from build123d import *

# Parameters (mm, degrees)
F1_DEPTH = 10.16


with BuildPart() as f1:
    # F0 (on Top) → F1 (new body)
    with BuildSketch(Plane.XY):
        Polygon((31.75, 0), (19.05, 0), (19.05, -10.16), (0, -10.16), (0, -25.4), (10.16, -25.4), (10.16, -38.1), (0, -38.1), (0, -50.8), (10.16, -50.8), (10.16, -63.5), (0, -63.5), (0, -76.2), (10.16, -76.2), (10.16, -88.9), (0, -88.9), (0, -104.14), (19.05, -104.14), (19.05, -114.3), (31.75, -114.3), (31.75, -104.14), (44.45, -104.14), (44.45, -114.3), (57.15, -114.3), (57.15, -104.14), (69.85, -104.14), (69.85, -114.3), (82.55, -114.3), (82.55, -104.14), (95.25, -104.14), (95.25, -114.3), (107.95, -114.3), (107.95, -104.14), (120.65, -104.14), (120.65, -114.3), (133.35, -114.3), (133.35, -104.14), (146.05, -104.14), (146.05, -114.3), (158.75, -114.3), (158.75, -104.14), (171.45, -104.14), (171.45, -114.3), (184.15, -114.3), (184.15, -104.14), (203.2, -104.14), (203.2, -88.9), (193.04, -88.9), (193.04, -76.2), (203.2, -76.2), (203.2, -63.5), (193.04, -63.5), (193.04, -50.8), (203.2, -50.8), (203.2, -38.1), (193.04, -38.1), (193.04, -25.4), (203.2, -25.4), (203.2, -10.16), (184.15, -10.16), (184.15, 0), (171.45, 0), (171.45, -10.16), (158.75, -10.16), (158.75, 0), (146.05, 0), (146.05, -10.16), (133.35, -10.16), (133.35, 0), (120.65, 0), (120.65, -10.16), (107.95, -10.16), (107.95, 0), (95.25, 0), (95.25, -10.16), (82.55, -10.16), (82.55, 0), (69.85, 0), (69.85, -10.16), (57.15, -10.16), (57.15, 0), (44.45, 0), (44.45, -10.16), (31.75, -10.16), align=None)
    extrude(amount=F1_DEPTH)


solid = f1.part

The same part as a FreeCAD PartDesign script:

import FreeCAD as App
import Part
import Sketcher
Q = App.Units.Quantity

doc = App.newDocument("Part")
params = doc.addObject("Spreadsheet::Sheet", "Params")
for row, (alias, value) in enumerate([
    ("sketch1_width", "0.5 in"),
    ("sketch1_width2", "0.4 in"),
    ("sketch1_height", "0.6 in"),
    ("pad1_length", "0.4 in"),
], start=1):
    params.set(f"A{row}", alias)
    params.set(f"B{row}", "=" + value)
    params.setAlias(f"B{row}", alias)

body = doc.addObject("PartDesign::Body", "Body")

sketch1 = body.newObject("Sketcher::SketchObject", "Sketch")
sketch1.AttachmentSupport = (doc.getObject("XY_Plane"), [""])
sketch1.MapMode = "FlatFace"
sketch1.addGeometry(Part.LineSegment(App.Vector(32, 0, 0), App.Vector(19, 0, 0)), False)
sketch1.addGeometry(Part.LineSegment(App.Vector(19, 0, 0), App.Vector(19, -10, 0)), False)
sketch1.addGeometry(Part.LineSegment(App.Vector(19, -10, 0), App.Vector(0, -10, 0)), False)
sketch1.addGeometry(Part.LineSegment(App.Vector(0, -10, 0), App.Vector(0, -25, 0)), False)
sketch1.addGeometry(Part.LineSegment(App.Vector(0, -25, 0), App.Vector(10, -25, 0)), False)
sketch1.addGeometry(Part.LineSegment(App.Vector(10, -25, 0), App.Vector(10, -38, 0)), False)
sketch1.addGeometry(Part.LineSegment(App.Vector(10, -38, 0), App.Vector(0, -38, 0)), False)
sketch1.addGeometry(Part.LineSegment(App.Vector(0, -38, 0), App.Vector(0, -51, 0)), False)
sketch1.addGeometry(Part.LineSegment(App.Vector(0, -51, 0), App.Vector(10, -51, 0)), False)
sketch1.addGeometry(Part.LineSegment(App.Vector(10, -51, 0), App.Vector(10, -64, 0)), False)
sketch1.addGeometry(Part.LineSegment(App.Vector(10, -64, 0), App.Vector(0, -64, 0)), False)
sketch1.addGeometry(Part.LineSegment(App.Vector(0, -64, 0), App.Vector(0, -76, 0)), False)
sketch1.addGeometry(Part.LineSegment(App.Vector(0, -76, 0), App.Vector(10, -76, 0)), False)
sketch1.addGeometry(Part.LineSegment(App.Vector(10, -76, 0), App.Vector(10, -89, 0)), False)
sketch1.addGeometry(Part.LineSegment(App.Vector(10, -89, 0), App.Vector(0, -89, 0)), False)
sketch1.addGeometry(Part.LineSegment(App.Vector(0, -89, 0), App.Vector(0, -104, 0)), False)
sketch1.addGeometry(Part.LineSegment(App.Vector(0, -104, 0), App.Vector(19, -104, 0)), False)
sketch1.addGeometry(Part.LineSegment(App.Vector(19, -104, 0), App.Vector(19, -114, 0)), False)
sketch1.addGeometry(Part.LineSegment(App.Vector(19, -114, 0), App.Vector(32, -114, 0)), False)
sketch1.addGeometry(Part.LineSegment(App.Vector(32, -114, 0), App.Vector(32, -104, 0)), False)
sketch1.addGeometry(Part.LineSegment(App.Vector(32, -104, 0), App.Vector(44, -104, 0)), False)
sketch1.addGeometry(Part.LineSegment(App.Vector(44, -104, 0), App.Vector(44, -114, 0)), False)
sketch1.addGeometry(Part.LineSegment(App.Vector(44, -114, 0), App.Vector(57, -114, 0)), False)
sketch1.addGeometry(Part.LineSegment(App.Vector(57, -114, 0), App.Vector(57, -104, 0)), False)
sketch1.addGeometry(Part.LineSegment(App.Vector(57, -104, 0), App.Vector(70, -104, 0)), False)
sketch1.addGeometry(Part.LineSegment(App.Vector(70, -104, 0), App.Vector(70, -114, 0)), False)
sketch1.addGeometry(Part.LineSegment(App.Vector(70, -114, 0), App.Vector(83, -114, 0)), False)
sketch1.addGeometry(Part.LineSegment(App.Vector(83, -114, 0), App.Vector(83, -104, 0)), False)
sketch1.addGeometry(Part.LineSegment(App.Vector(83, -104, 0), App.Vector(95, -104, 0)), False)
sketch1.addGeometry(Part.LineSegment(App.Vector(95, -104, 0), App.Vector(95, -114, 0)), False)
sketch1.addGeometry(Part.LineSegment(App.Vector(95, -114, 0), App.Vector(108, -114, 0)), False)
sketch1.addGeometry(Part.LineSegment(App.Vector(108, -114, 0), App.Vector(108, -104, 0)), False)
sketch1.addGeometry(Part.LineSegment(App.Vector(108, -104, 0), App.Vector(121, -104, 0)), False)
sketch1.addGeometry(Part.LineSegment(App.Vector(121, -104, 0), App.Vector(121, -114, 0)), False)
sketch1.addGeometry(Part.LineSegment(App.Vector(121, -114, 0), App.Vector(133, -114, 0)), False)
sketch1.addGeometry(Part.LineSegment(App.Vector(133, -114, 0), App.Vector(133, -104, 0)), False)
sketch1.addGeometry(Part.LineSegment(App.Vector(133, -104, 0), App.Vector(146, -104, 0)), False)
sketch1.addGeometry(Part.LineSegment(App.Vector(146, -104, 0), App.Vector(146, -114, 0)), False)
sketch1.addGeometry(Part.LineSegment(App.Vector(146, -114, 0), App.Vector(159, -114, 0)), False)
sketch1.addGeometry(Part.LineSegment(App.Vector(159, -114, 0), App.Vector(159, -104, 0)), False)
sketch1.addGeometry(Part.LineSegment(App.Vector(159, -104, 0), App.Vector(171, -104, 0)), False)
sketch1.addGeometry(Part.LineSegment(App.Vector(171, -104, 0), App.Vector(171, -114, 0)), False)
sketch1.addGeometry(Part.LineSegment(App.Vector(171, -114, 0), App.Vector(184, -114, 0)), False)
sketch1.addGeometry(Part.LineSegment(App.Vector(184, -114, 0), App.Vector(184, -104, 0)), False)
sketch1.addGeometry(Part.LineSegment(App.Vector(184, -104, 0), App.Vector(203, -104, 0)), False)
sketch1.addGeometry(Part.LineSegment(App.Vector(203, -104, 0), App.Vector(203, -89, 0)), False)
sketch1.addGeometry(Part.LineSegment(App.Vector(203, -89, 0), App.Vector(193, -89, 0)), False)
sketch1.addGeometry(Part.LineSegment(App.Vector(193, -89, 0), App.Vector(193, -76, 0)), False)
sketch1.addGeometry(Part.LineSegment(App.Vector(193, -76, 0), App.Vector(203, -76, 0)), False)
sketch1.addGeometry(Part.LineSegment(App.Vector(203, -76, 0), App.Vector(203, -64, 0)), False)
sketch1.addGeometry(Part.LineSegment(App.Vector(203, -64, 0), App.Vector(193, -64, 0)), False)
sketch1.addGeometry(Part.LineSegment(App.Vector(193, -64, 0), App.Vector(193, -51, 0)), False)
sketch1.addGeometry(Part.LineSegment(App.Vector(193, -51, 0), App.Vector(203, -51, 0)), False)
sketch1.addGeometry(Part.LineSegment(App.Vector(203, -51, 0), App.Vector(203, -38, 0)), False)
sketch1.addGeometry(Part.LineSegment(App.Vector(203, -38, 0), App.Vector(193, -38, 0)), False)
sketch1.addGeometry(Part.LineSegment(App.Vector(193, -38, 0), App.Vector(193, -25, 0)), False)
sketch1.addGeometry(Part.LineSegment(App.Vector(193, -25, 0), App.Vector(203, -25, 0)), False)
sketch1.addGeometry(Part.LineSegment(App.Vector(203, -25, 0), App.Vector(203, -10, 0)), False)
sketch1.addGeometry(Part.LineSegment(App.Vector(203, -10, 0), App.Vector(184, -10, 0)), False)
sketch1.addGeometry(Part.LineSegment(App.Vector(184, -10, 0), App.Vector(184, 0, 0)), False)
sketch1.addGeometry(Part.LineSegment(App.Vector(184, 0, 0), App.Vector(171, 0, 0)), False)
sketch1.addGeometry(Part.LineSegment(App.Vector(171, 0, 0), App.Vector(171, -10, 0)), False)
sketch1.addGeometry(Part.LineSegment(App.Vector(171, -10, 0), App.Vector(159, -10, 0)), False)
sketch1.addGeometry(Part.LineSegment(App.Vector(159, -10, 0), App.Vector(159, 0, 0)), False)
sketch1.addGeometry(Part.LineSegment(App.Vector(159, 0, 0), App.Vector(146, 0, 0)), False)
sketch1.addGeometry(Part.LineSegment(App.Vector(146, 0, 0), App.Vector(146, -10, 0)), False)
sketch1.addGeometry(Part.LineSegment(App.Vector(146, -10, 0), App.Vector(133, -10, 0)), False)
sketch1.addGeometry(Part.LineSegment(App.Vector(133, -10, 0), App.Vector(133, 0, 0)), False)
sketch1.addGeometry(Part.LineSegment(App.Vector(133, 0, 0), App.Vector(121, 0, 0)), False)
sketch1.addGeometry(Part.LineSegment(App.Vector(121, 0, 0), App.Vector(121, -10, 0)), False)
sketch1.addGeometry(Part.LineSegment(App.Vector(121, -10, 0), App.Vector(108, -10, 0)), False)
sketch1.addGeometry(Part.LineSegment(App.Vector(108, -10, 0), App.Vector(108, 0, 0)), False)
sketch1.addGeometry(Part.LineSegment(App.Vector(108, 0, 0), App.Vector(95, 0, 0)), False)
sketch1.addGeometry(Part.LineSegment(App.Vector(95, 0, 0), App.Vector(95, -10, 0)), False)
sketch1.addGeometry(Part.LineSegment(App.Vector(95, -10, 0), App.Vector(83, -10, 0)), False)
sketch1.addGeometry(Part.LineSegment(App.Vector(83, -10, 0), App.Vector(83, 0, 0)), False)
sketch1.addGeometry(Part.LineSegment(App.Vector(83, 0, 0), App.Vector(70, 0, 0)), False)
sketch1.addGeometry(Part.LineSegment(App.Vector(70, 0, 0), App.Vector(70, -10, 0)), False)
sketch1.addGeometry(Part.LineSegment(App.Vector(70, -10, 0), App.Vector(57, -10, 0)), False)
sketch1.addGeometry(Part.LineSegment(App.Vector(57, -10, 0), App.Vector(57, 0, 0)), False)
sketch1.addGeometry(Part.LineSegment(App.Vector(57, 0, 0), App.Vector(44, 0, 0)), False)
sketch1.addGeometry(Part.LineSegment(App.Vector(44, 0, 0), App.Vector(44, -10, 0)), False)
sketch1.addGeometry(Part.LineSegment(App.Vector(44, -10, 0), App.Vector(32, -10, 0)), False)
sketch1.addGeometry(Part.LineSegment(App.Vector(32, -10, 0), App.Vector(32, 0, 0)), False)
sketch1.addConstraint(Sketcher.Constraint("Coincident", 0, 2, 1, 1))
sketch1.addConstraint(Sketcher.Constraint("Coincident", 1, 2, 2, 1))
sketch1.addConstraint(Sketcher.Constraint("Coincident", 2, 2, 3, 1))
sketch1.addConstraint(Sketcher.Constraint("Coincident", 3, 2, 4, 1))
sketch1.addConstraint(Sketcher.Constraint("Coincident", 4, 2, 5, 1))
sketch1.addConstraint(Sketcher.Constraint("Coincident", 5, 2, 6, 1))
sketch1.addConstraint(Sketcher.Constraint("Coincident", 6, 2, 7, 1))
sketch1.addConstraint(Sketcher.Constraint("Coincident", 7, 2, 8, 1))
sketch1.addConstraint(Sketcher.Constraint("Coincident", 8, 2, 9, 1))
sketch1.addConstraint(Sketcher.Constraint("Coincident", 9, 2, 10, 1))
sketch1.addConstraint(Sketcher.Constraint("Coincident", 10, 2, 11, 1))
sketch1.addConstraint(Sketcher.Constraint("Coincident", 11, 2, 12, 1))
sketch1.addConstraint(Sketcher.Constraint("Coincident", 12, 2, 13, 1))
sketch1.addConstraint(Sketcher.Constraint("Coincident", 13, 2, 14, 1))
sketch1.addConstraint(Sketcher.Constraint("Coincident", 14, 2, 15, 1))
sketch1.addConstraint(Sketcher.Constraint("Coincident", 15, 2, 16, 1))
sketch1.addConstraint(Sketcher.Constraint("Coincident", 16, 2, 17, 1))
sketch1.addConstraint(Sketcher.Constraint("Coincident", 17, 2, 18, 1))
sketch1.addConstraint(Sketcher.Constraint("Coincident", 18, 2, 19, 1))
sketch1.addConstraint(Sketcher.Constraint("Coincident", 19, 2, 20, 1))
sketch1.addConstraint(Sketcher.Constraint("Coincident", 20, 2, 21, 1))
sketch1.addConstraint(Sketcher.Constraint("Coincident", 21, 2, 22, 1))
sketch1.addConstraint(Sketcher.Constraint("Coincident", 22, 2, 23, 1))
sketch1.addConstraint(Sketcher.Constraint("Coincident", 23, 2, 24, 1))
sketch1.addConstraint(Sketcher.Constraint("Coincident", 24, 2, 25, 1))
sketch1.addConstraint(Sketcher.Constraint("Coincident", 25, 2, 26, 1))
sketch1.addConstraint(Sketcher.Constraint("Coincident", 26, 2, 27, 1))
sketch1.addConstraint(Sketcher.Constraint("Coincident", 27, 2, 28, 1))
sketch1.addConstraint(Sketcher.Constraint("Coincident", 28, 2, 29, 1))
sketch1.addConstraint(Sketcher.Constraint("Coincident", 29, 2, 30, 1))
sketch1.addConstraint(Sketcher.Constraint("Coincident", 30, 2, 31, 1))
sketch1.addConstraint(Sketcher.Constraint("Coincident", 31, 2, 32, 1))
sketch1.addConstraint(Sketcher.Constraint("Coincident", 32, 2, 33, 1))
sketch1.addConstraint(Sketcher.Constraint("Coincident", 33, 2, 34, 1))
sketch1.addConstraint(Sketcher.Constraint("Coincident", 34, 2, 35, 1))
sketch1.addConstraint(Sketcher.Constraint("Coincident", 35, 2, 36, 1))
sketch1.addConstraint(Sketcher.Constraint("Coincident", 36, 2, 37, 1))
sketch1.addConstraint(Sketcher.Constraint("Coincident", 37, 2, 38, 1))
sketch1.addConstraint(Sketcher.Constraint("Coincident", 38, 2, 39, 1))
sketch1.addConstraint(Sketcher.Constraint("Coincident", 39, 2, 40, 1))
sketch1.addConstraint(Sketcher.Constraint("Coincident", 40, 2, 41, 1))
sketch1.addConstraint(Sketcher.Constraint("Coincident", 41, 2, 42, 1))
sketch1.addConstraint(Sketcher.Constraint("Coincident", 42, 2, 43, 1))
sketch1.addConstraint(Sketcher.Constraint("Coincident", 43, 2, 44, 1))
sketch1.addConstraint(Sketcher.Constraint("Coincident", 44, 2, 45, 1))
sketch1.addConstraint(Sketcher.Constraint("Coincident", 45, 2, 46, 1))
sketch1.addConstraint(Sketcher.Constraint("Coincident", 46, 2, 47, 1))
sketch1.addConstraint(Sketcher.Constraint("Coincident", 47, 2, 48, 1))
sketch1.addConstraint(Sketcher.Constraint("Coincident", 48, 2, 49, 1))
sketch1.addConstraint(Sketcher.Constraint("Coincident", 49, 2, 50, 1))
sketch1.addConstraint(Sketcher.Constraint("Coincident", 50, 2, 51, 1))
sketch1.addConstraint(Sketcher.Constraint("Coincident", 51, 2, 52, 1))
sketch1.addConstraint(Sketcher.Constraint("Coincident", 52, 2, 53, 1))
sketch1.addConstraint(Sketcher.Constraint("Coincident", 53, 2, 54, 1))
sketch1.addConstraint(Sketcher.Constraint("Coincident", 54, 2, 55, 1))
sketch1.addConstraint(Sketcher.Constraint("Coincident", 55, 2, 56, 1))
sketch1.addConstraint(Sketcher.Constraint("Coincident", 56, 2, 57, 1))
sketch1.addConstraint(Sketcher.Constraint("Coincident", 57, 2, 58, 1))
sketch1.addConstraint(Sketcher.Constraint("Coincident", 58, 2, 59, 1))
sketch1.addConstraint(Sketcher.Constraint("Coincident", 59, 2, 60, 1))
sketch1.addConstraint(Sketcher.Constraint("Coincident", 60, 2, 61, 1))
sketch1.addConstraint(Sketcher.Constraint("Coincident", 61, 2, 62, 1))
sketch1.addConstraint(Sketcher.Constraint("Coincident", 62, 2, 63, 1))
sketch1.addConstraint(Sketcher.Constraint("Coincident", 63, 2, 64, 1))
sketch1.addConstraint(Sketcher.Constraint("Coincident", 64, 2, 65, 1))
sketch1.addConstraint(Sketcher.Constraint("Coincident", 65, 2, 66, 1))
sketch1.addConstraint(Sketcher.Constraint("Coincident", 66, 2, 67, 1))
sketch1.addConstraint(Sketcher.Constraint("Coincident", 67, 2, 68, 1))
sketch1.addConstraint(Sketcher.Constraint("Coincident", 68, 2, 69, 1))
sketch1.addConstraint(Sketcher.Constraint("Coincident", 69, 2, 70, 1))
sketch1.addConstraint(Sketcher.Constraint("Coincident", 70, 2, 71, 1))
sketch1.addConstraint(Sketcher.Constraint("Coincident", 71, 2, 72, 1))
sketch1.addConstraint(Sketcher.Constraint("Coincident", 72, 2, 73, 1))
sketch1.addConstraint(Sketcher.Constraint("Coincident", 73, 2, 74, 1))
sketch1.addConstraint(Sketcher.Constraint("Coincident", 74, 2, 75, 1))
sketch1.addConstraint(Sketcher.Constraint("Coincident", 75, 2, 76, 1))
sketch1.addConstraint(Sketcher.Constraint("Coincident", 76, 2, 77, 1))
sketch1.addConstraint(Sketcher.Constraint("Coincident", 77, 2, 78, 1))
sketch1.addConstraint(Sketcher.Constraint("Coincident", 78, 2, 79, 1))
sketch1.addConstraint(Sketcher.Constraint("Coincident", 79, 2, 80, 1))
sketch1.addConstraint(Sketcher.Constraint("Coincident", 80, 2, 81, 1))
sketch1.addConstraint(Sketcher.Constraint("Coincident", 81, 2, 82, 1))
sketch1.addConstraint(Sketcher.Constraint("Coincident", 82, 2, 83, 1))
sketch1.addConstraint(Sketcher.Constraint("Coincident", 83, 2, 0, 1))
sketch1.addConstraint(Sketcher.Constraint("Horizontal", 0))
sketch1.addConstraint(Sketcher.Constraint("Vertical", 1))
sketch1.addConstraint(Sketcher.Constraint("Horizontal", 2))
sketch1.addConstraint(Sketcher.Constraint("Vertical", 3))
sketch1.addConstraint(Sketcher.Constraint("Horizontal", 4))
sketch1.addConstraint(Sketcher.Constraint("Vertical", 5))
sketch1.addConstraint(Sketcher.Constraint("Horizontal", 6))
sketch1.addConstraint(Sketcher.Constraint("Vertical", 7))
sketch1.addConstraint(Sketcher.Constraint("Horizontal", 8))
sketch1.addConstraint(Sketcher.Constraint("Vertical", 9))
sketch1.addConstraint(Sketcher.Constraint("Horizontal", 10))
sketch1.addConstraint(Sketcher.Constraint("Vertical", 11))
sketch1.addConstraint(Sketcher.Constraint("Horizontal", 12))
sketch1.addConstraint(Sketcher.Constraint("Vertical", 13))
sketch1.addConstraint(Sketcher.Constraint("Horizontal", 14))
sketch1.addConstraint(Sketcher.Constraint("Vertical", 15))
sketch1.addConstraint(Sketcher.Constraint("Horizontal", 16))
sketch1.addConstraint(Sketcher.Constraint("Vertical", 17))
sketch1.addConstraint(Sketcher.Constraint("Horizontal", 18))
sketch1.addConstraint(Sketcher.Constraint("Vertical", 19))
sketch1.addConstraint(Sketcher.Constraint("Horizontal", 20))
sketch1.addConstraint(Sketcher.Constraint("Vertical", 21))
sketch1.addConstraint(Sketcher.Constraint("Horizontal", 22))
sketch1.addConstraint(Sketcher.Constraint("Vertical", 23))
sketch1.addConstraint(Sketcher.Constraint("Horizontal", 24))
sketch1.addConstraint(Sketcher.Constraint("Vertical", 25))
sketch1.addConstraint(Sketcher.Constraint("Horizontal", 26))
sketch1.addConstraint(Sketcher.Constraint("Vertical", 27))
sketch1.addConstraint(Sketcher.Constraint("Horizontal", 28))
sketch1.addConstraint(Sketcher.Constraint("Vertical", 29))
sketch1.addConstraint(Sketcher.Constraint("Horizontal", 30))
sketch1.addConstraint(Sketcher.Constraint("Vertical", 31))
sketch1.addConstraint(Sketcher.Constraint("Horizontal", 32))
sketch1.addConstraint(Sketcher.Constraint("Vertical", 33))
sketch1.addConstraint(Sketcher.Constraint("Horizontal", 34))
sketch1.addConstraint(Sketcher.Constraint("Vertical", 35))
sketch1.addConstraint(Sketcher.Constraint("Horizontal", 36))
sketch1.addConstraint(Sketcher.Constraint("Vertical", 37))
sketch1.addConstraint(Sketcher.Constraint("Horizontal", 38))
sketch1.addConstraint(Sketcher.Constraint("Vertical", 39))
sketch1.addConstraint(Sketcher.Constraint("Horizontal", 40))
sketch1.addConstraint(Sketcher.Constraint("Vertical", 41))
sketch1.addConstraint(Sketcher.Constraint("Horizontal", 42))
sketch1.addConstraint(Sketcher.Constraint("Vertical", 43))
sketch1.addConstraint(Sketcher.Constraint("Horizontal", 44))
sketch1.addConstraint(Sketcher.Constraint("Vertical", 45))
sketch1.addConstraint(Sketcher.Constraint("Horizontal", 46))
sketch1.addConstraint(Sketcher.Constraint("Vertical", 47))
sketch1.addConstraint(Sketcher.Constraint("Horizontal", 48))
sketch1.addConstraint(Sketcher.Constraint("Vertical", 49))
sketch1.addConstraint(Sketcher.Constraint("Horizontal", 50))
sketch1.addConstraint(Sketcher.Constraint("Vertical", 51))
sketch1.addConstraint(Sketcher.Constraint("Horizontal", 52))
sketch1.addConstraint(Sketcher.Constraint("Vertical", 53))
sketch1.addConstraint(Sketcher.Constraint("Horizontal", 54))
sketch1.addConstraint(Sketcher.Constraint("Vertical", 55))
sketch1.addConstraint(Sketcher.Constraint("Horizontal", 56))
sketch1.addConstraint(Sketcher.Constraint("Vertical", 57))
sketch1.addConstraint(Sketcher.Constraint("Horizontal", 58))
sketch1.addConstraint(Sketcher.Constraint("Vertical", 59))
sketch1.addConstraint(Sketcher.Constraint("Horizontal", 60))
sketch1.addConstraint(Sketcher.Constraint("Vertical", 61))
sketch1.addConstraint(Sketcher.Constraint("Horizontal", 62))
sketch1.addConstraint(Sketcher.Constraint("Vertical", 63))
sketch1.addConstraint(Sketcher.Constraint("Horizontal", 64))
sketch1.addConstraint(Sketcher.Constraint("Vertical", 65))
sketch1.addConstraint(Sketcher.Constraint("Horizontal", 66))
sketch1.addConstraint(Sketcher.Constraint("Vertical", 67))
sketch1.addConstraint(Sketcher.Constraint("Horizontal", 68))
sketch1.addConstraint(Sketcher.Constraint("Vertical", 69))
sketch1.addConstraint(Sketcher.Constraint("Horizontal", 70))
sketch1.addConstraint(Sketcher.Constraint("Vertical", 71))
sketch1.addConstraint(Sketcher.Constraint("Horizontal", 72))
sketch1.addConstraint(Sketcher.Constraint("Vertical", 73))
sketch1.addConstraint(Sketcher.Constraint("Horizontal", 74))
sketch1.addConstraint(Sketcher.Constraint("Vertical", 75))
sketch1.addConstraint(Sketcher.Constraint("Horizontal", 76))
sketch1.addConstraint(Sketcher.Constraint("Vertical", 77))
sketch1.addConstraint(Sketcher.Constraint("Horizontal", 78))
sketch1.addConstraint(Sketcher.Constraint("Vertical", 79))
sketch1.addConstraint(Sketcher.Constraint("Horizontal", 80))
sketch1.addConstraint(Sketcher.Constraint("Vertical", 81))
sketch1.addConstraint(Sketcher.Constraint("Horizontal", 82))
sketch1.addConstraint(Sketcher.Constraint("Vertical", 83))
sketch1.addConstraint(Sketcher.Constraint("PointOnObject", 0, 2, -1))
sketch1.addConstraint(Sketcher.Constraint("PointOnObject", 2, 2, -2))
sketch1.addConstraint(Sketcher.Constraint("PointOnObject", 6, 2, -2))
sketch1.addConstraint(Sketcher.Constraint("PointOnObject", 10, 2, -2))
sketch1.addConstraint(Sketcher.Constraint("PointOnObject", 14, 2, -2))
sketch1.addConstraint(Sketcher.Constraint("PointOnObject", 59, 2, -1))
sketch1.addConstraint(Sketcher.Constraint("PointOnObject", 63, 2, -1))
sketch1.addConstraint(Sketcher.Constraint("PointOnObject", 67, 2, -1))
sketch1.addConstraint(Sketcher.Constraint("PointOnObject", 71, 2, -1))
sketch1.addConstraint(Sketcher.Constraint("PointOnObject", 75, 2, -1))
sketch1.addConstraint(Sketcher.Constraint("PointOnObject", 79, 2, -1))
sketch1.addConstraint(Sketcher.Constraint("Horizontal", 16, 2, 19, 2))
sketch1.addConstraint(Sketcher.Constraint("Horizontal", 18, 2, 21, 2))
sketch1.addConstraint(Sketcher.Constraint("Horizontal", 20, 2, 23, 2))
sketch1.addConstraint(Sketcher.Constraint("Horizontal", 22, 2, 25, 2))
sketch1.addConstraint(Sketcher.Constraint("Horizontal", 24, 2, 27, 2))
sketch1.addConstraint(Sketcher.Constraint("Horizontal", 26, 2, 29, 2))
sketch1.addConstraint(Sketcher.Constraint("Horizontal", 28, 2, 31, 2))
sketch1.addConstraint(Sketcher.Constraint("Horizontal", 30, 2, 33, 2))
sketch1.addConstraint(Sketcher.Constraint("Horizontal", 32, 2, 35, 2))
sketch1.addConstraint(Sketcher.Constraint("Horizontal", 34, 2, 37, 2))
sketch1.addConstraint(Sketcher.Constraint("Horizontal", 36, 2, 39, 2))
sketch1.addConstraint(Sketcher.Constraint("Horizontal", 38, 2, 41, 2))
sketch1.addConstraint(Sketcher.Constraint("Horizontal", 40, 2, 43, 2))
sketch1.addConstraint(Sketcher.Constraint("Horizontal", 14, 2, 45, 2))
sketch1.addConstraint(Sketcher.Constraint("Horizontal", 12, 2, 47, 2))
sketch1.addConstraint(Sketcher.Constraint("Horizontal", 10, 2, 49, 2))
sketch1.addConstraint(Sketcher.Constraint("Horizontal", 8, 2, 51, 2))
sketch1.addConstraint(Sketcher.Constraint("Horizontal", 6, 2, 53, 2))
sketch1.addConstraint(Sketcher.Constraint("Horizontal", 4, 2, 55, 2))
sketch1.addConstraint(Sketcher.Constraint("Horizontal", 2, 2, 57, 2))
sketch1.addConstraint(Sketcher.Constraint("Horizontal", 58, 2, 61, 2))
sketch1.addConstraint(Sketcher.Constraint("Horizontal", 62, 2, 65, 2))
sketch1.addConstraint(Sketcher.Constraint("Horizontal", 66, 2, 69, 2))
sketch1.addConstraint(Sketcher.Constraint("Horizontal", 70, 2, 73, 2))
sketch1.addConstraint(Sketcher.Constraint("Horizontal", 74, 2, 77, 2))
sketch1.addConstraint(Sketcher.Constraint("Horizontal", 78, 2, 81, 2))
sketch1.addConstraint(Sketcher.Constraint("Vertical", 5, 2, 8, 2))
sketch1.addConstraint(Sketcher.Constraint("Vertical", 9, 2, 12, 2))
sketch1.addConstraint(Sketcher.Constraint("Vertical", 1, 2, 16, 2))
sketch1.addConstraint(Sketcher.Constraint("Vertical", 45, 2, 48, 2))
sketch1.addConstraint(Sketcher.Constraint("Vertical", 47, 2, 50, 2))
sketch1.addConstraint(Sketcher.Constraint("Vertical", 49, 2, 52, 2))
sketch1.addConstraint(Sketcher.Constraint("Vertical", 51, 2, 54, 2))
sketch1.addConstraint(Sketcher.Constraint("Vertical", 53, 2, 56, 2))
sketch1.addConstraint(Sketcher.Constraint("Vertical", 43, 2, 58, 2))
sketch1.addConstraint(Sketcher.Constraint("Vertical", 41, 2, 60, 2))
sketch1.addConstraint(Sketcher.Constraint("Vertical", 39, 2, 62, 2))
sketch1.addConstraint(Sketcher.Constraint("Vertical", 37, 2, 64, 2))
sketch1.addConstraint(Sketcher.Constraint("Vertical", 35, 2, 66, 2))
sketch1.addConstraint(Sketcher.Constraint("Vertical", 33, 2, 68, 2))
sketch1.addConstraint(Sketcher.Constraint("Vertical", 31, 2, 70, 2))
sketch1.addConstraint(Sketcher.Constraint("Vertical", 29, 2, 72, 2))
sketch1.addConstraint(Sketcher.Constraint("Vertical", 27, 2, 74, 2))
sketch1.addConstraint(Sketcher.Constraint("Vertical", 25, 2, 76, 2))
sketch1.addConstraint(Sketcher.Constraint("Vertical", 23, 2, 78, 2))
sketch1.addConstraint(Sketcher.Constraint("Vertical", 21, 2, 80, 2))
sketch1.addConstraint(Sketcher.Constraint("Vertical", 19, 2, 82, 2))
sketch1.addConstraint(Sketcher.Constraint("Equal", 18, 20))
sketch1.addConstraint(Sketcher.Constraint("Equal", 20, 22))
sketch1.addConstraint(Sketcher.Constraint("Equal", 22, 24))
sketch1.addConstraint(Sketcher.Constraint("Equal", 24, 26))
sketch1.addConstraint(Sketcher.Constraint("Equal", 26, 28))
sketch1.addConstraint(Sketcher.Constraint("Equal", 28, 30))
sketch1.addConstraint(Sketcher.Constraint("Equal", 30, 32))
sketch1.addConstraint(Sketcher.Constraint("Equal", 32, 34))
sketch1.addConstraint(Sketcher.Constraint("Equal", 34, 36))
sketch1.addConstraint(Sketcher.Constraint("Equal", 36, 38))
sketch1.addConstraint(Sketcher.Constraint("Equal", 38, 40))
sketch1.addConstraint(Sketcher.Constraint("Equal", 40, 42))
sketch1.addConstraint(Sketcher.Constraint("Equal", 16, 44))
sketch1.addConstraint(Sketcher.Constraint("Equal", 14, 46))
sketch1.addConstraint(Sketcher.Constraint("Equal", 56, 1))
sketch1.addConstraint(Sketcher.Constraint("Equal", 82, 5))
sketch1.addConstraint(Sketcher.Constraint("Equal", 5, 7))
sketch1.addConstraint(Sketcher.Constraint("Equal", 7, 9))
sketch1.addConstraint(Sketcher.Constraint("Equal", 9, 11))
sketch1.addConstraint(Sketcher.Constraint("Equal", 11, 13))
sketch1.addConstraint(Sketcher.Constraint("Equal", 3, 15))
sketch1.addConstraint(Sketcher.Constraint("Equal", 1, 17))
sketch1.addConstraint(Sketcher.Constraint("DistanceX", 0, 2, 0, 1, Q("0.5 in")))
sketch1.addConstraint(Sketcher.Constraint("DistanceX", 4, 1, 4, 2, Q("0.4 in")))
sketch1.addConstraint(Sketcher.Constraint("DistanceY", 3, 2, 3, 1, Q("0.6 in")))
sketch1.addConstraint(Sketcher.Constraint("DistanceX", -1, 1, 44, 2, Q("8 in")))
sketch1.setExpression("Constraints[248]", "Params.sketch1_width")
sketch1.setExpression("Constraints[249]", "Params.sketch1_width2")
sketch1.setExpression("Constraints[250]", "Params.sketch1_height")
pad1 = body.newObject("PartDesign::Pad", "Pad")
pad1.Profile = sketch1
pad1.setExpression("Length", "Params.pad1_length")

doc.recompute()
